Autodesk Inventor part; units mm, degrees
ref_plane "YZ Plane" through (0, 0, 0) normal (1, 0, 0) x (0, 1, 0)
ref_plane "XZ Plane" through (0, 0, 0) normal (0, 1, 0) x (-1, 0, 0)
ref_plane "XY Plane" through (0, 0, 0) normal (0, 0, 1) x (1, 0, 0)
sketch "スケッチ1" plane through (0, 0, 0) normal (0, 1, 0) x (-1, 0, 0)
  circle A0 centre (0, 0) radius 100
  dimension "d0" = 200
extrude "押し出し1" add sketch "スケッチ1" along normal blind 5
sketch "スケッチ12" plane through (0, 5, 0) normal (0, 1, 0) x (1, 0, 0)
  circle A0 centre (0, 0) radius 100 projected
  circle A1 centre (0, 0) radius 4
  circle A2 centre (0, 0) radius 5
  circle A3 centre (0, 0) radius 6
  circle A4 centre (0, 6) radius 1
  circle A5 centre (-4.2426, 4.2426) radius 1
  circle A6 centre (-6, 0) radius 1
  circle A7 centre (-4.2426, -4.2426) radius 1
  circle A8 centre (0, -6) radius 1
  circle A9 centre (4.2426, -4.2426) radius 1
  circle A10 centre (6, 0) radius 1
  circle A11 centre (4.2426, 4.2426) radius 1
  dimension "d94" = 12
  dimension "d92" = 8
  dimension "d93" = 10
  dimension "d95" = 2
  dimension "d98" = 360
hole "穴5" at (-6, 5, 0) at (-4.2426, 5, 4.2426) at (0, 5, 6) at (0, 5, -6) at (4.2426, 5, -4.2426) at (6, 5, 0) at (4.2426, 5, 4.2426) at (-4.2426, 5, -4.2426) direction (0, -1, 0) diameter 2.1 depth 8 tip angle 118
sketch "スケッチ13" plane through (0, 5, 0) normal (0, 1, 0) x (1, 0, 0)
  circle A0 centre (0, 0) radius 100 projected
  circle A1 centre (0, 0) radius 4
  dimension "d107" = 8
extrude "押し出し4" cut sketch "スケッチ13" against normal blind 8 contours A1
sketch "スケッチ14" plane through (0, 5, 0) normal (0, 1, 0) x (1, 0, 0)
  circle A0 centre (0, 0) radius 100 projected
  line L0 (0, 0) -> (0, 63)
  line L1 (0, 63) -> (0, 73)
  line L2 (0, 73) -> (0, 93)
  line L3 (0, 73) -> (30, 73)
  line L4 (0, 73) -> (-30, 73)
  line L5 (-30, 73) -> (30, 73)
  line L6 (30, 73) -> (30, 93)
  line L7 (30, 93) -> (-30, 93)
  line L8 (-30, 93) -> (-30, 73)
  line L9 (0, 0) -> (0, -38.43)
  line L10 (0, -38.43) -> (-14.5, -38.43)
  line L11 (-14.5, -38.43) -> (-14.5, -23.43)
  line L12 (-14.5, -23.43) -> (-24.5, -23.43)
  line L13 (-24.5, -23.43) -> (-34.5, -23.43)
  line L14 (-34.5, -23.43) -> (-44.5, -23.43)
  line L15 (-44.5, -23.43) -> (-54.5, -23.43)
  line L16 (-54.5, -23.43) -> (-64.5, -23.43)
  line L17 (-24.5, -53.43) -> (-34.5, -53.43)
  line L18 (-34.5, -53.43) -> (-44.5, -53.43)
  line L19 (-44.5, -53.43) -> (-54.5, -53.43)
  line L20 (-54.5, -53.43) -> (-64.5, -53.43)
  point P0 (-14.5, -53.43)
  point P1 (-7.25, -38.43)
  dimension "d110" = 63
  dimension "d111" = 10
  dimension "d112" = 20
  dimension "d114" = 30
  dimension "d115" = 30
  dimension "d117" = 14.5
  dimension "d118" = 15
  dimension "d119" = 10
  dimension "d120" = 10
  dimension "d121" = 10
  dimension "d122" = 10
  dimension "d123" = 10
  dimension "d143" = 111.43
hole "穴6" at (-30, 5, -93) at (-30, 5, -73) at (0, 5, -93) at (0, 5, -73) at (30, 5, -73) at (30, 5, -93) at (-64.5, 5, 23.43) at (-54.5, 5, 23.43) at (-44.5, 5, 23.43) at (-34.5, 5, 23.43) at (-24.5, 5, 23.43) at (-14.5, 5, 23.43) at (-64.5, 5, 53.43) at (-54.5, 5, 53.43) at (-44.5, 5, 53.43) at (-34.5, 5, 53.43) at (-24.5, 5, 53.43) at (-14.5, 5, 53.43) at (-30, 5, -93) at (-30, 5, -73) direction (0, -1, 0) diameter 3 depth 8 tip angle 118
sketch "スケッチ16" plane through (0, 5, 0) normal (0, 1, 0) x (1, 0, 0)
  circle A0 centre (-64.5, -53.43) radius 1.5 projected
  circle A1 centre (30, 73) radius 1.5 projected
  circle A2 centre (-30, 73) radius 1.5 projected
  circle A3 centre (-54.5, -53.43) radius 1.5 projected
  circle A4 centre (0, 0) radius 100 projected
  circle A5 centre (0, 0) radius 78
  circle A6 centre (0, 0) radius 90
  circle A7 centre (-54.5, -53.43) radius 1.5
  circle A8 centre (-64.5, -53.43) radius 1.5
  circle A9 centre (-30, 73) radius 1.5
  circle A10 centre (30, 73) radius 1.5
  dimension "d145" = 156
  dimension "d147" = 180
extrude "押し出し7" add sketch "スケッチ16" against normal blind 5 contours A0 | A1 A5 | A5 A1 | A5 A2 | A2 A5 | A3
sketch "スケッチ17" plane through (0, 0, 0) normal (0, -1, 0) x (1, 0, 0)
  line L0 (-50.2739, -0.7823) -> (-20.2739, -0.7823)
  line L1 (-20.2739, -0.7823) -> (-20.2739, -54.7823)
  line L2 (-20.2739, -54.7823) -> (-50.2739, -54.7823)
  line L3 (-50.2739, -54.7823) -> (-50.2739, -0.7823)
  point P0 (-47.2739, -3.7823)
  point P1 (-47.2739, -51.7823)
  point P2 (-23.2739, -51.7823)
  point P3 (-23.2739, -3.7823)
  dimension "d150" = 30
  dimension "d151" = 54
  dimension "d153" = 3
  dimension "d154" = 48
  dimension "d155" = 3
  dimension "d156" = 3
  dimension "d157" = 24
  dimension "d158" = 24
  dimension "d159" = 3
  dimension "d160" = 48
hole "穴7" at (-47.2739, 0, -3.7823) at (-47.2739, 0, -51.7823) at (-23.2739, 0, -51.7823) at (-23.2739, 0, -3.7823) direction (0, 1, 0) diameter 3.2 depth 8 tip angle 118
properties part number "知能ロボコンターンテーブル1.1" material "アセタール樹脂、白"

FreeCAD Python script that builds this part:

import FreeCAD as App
import Part
import Sketcher

V = App.Vector
Q = App.Units.Quantity

doc = App.newDocument("Part")
body = doc.addObject("PartDesign::Body", "Body")

sketch1 = body.newObject("Sketcher::SketchObject", "Sketch")
sketch1.AttachmentSupport = (doc.getObject("XZ_Plane"), [""])
sketch1.MapMode = "FlatFace"
sketch1.addGeometry(Part.Circle(V(0, 0, 0), V(0, 0, 1), 100), False)
sketch1.addConstraint([
    Sketcher.Constraint("Coincident", 0, 3, -1, 1),
    Sketcher.Constraint("Diameter", 0, Q("200 mm")),
])
pad1 = body.newObject("PartDesign::Pad", "Pad")
pad1.Profile = sketch1
pad1.Length = 5
pad1.Reversed = True

sketch2 = body.newObject("Sketcher::SketchObject", "Sketch001")
sketch2.AttachmentSupport = (doc.getObject("XZ_Plane"), [""])
sketch2.MapMode = "FlatFace"
sketch2.AttachmentOffset = App.Placement(V(0, 0, -5), App.Rotation())
sketch2.addGeometry([
    Part.Circle(V(-6, 0, 0), V(0, 0, 1), 1.1),
    Part.Circle(V(-4.2, 4.2, 0), V(0, 0, 1), 1.1),
    Part.Circle(V(0, 6, 0), V(0, 0, 1), 1.1),
    Part.Circle(V(0, -6, 0), V(0, 0, 1), 1.1),
    Part.Circle(V(4.2, -4.2, 0), V(0, 0, 1), 1.1),
    Part.Circle(V(6, 0, 0), V(0, 0, 1), 1.1),
    Part.Circle(V(4.2, 4.2, 0), V(0, 0, 1), 1.1),
    Part.Circle(V(-4.2, -4.2, 0), V(0, 0, 1), 1.1),
], False)
sketch2.addConstraint([
    Sketcher.Constraint("Equal", 0, 1),
    Sketcher.Constraint("Equal", 1, 2),
    Sketcher.Constraint("Equal", 2, 3),
    Sketcher.Constraint("Equal", 3, 4),
    Sketcher.Constraint("Equal", 4, 5),
    Sketcher.Constraint("Equal", 5, 6),
    Sketcher.Constraint("Equal", 6, 7),
    Sketcher.Constraint("Symmetric", 2, 3, 3, 3, -1, 1),
    Sketcher.Constraint("Symmetric", 1, 3, 4, 3, -1, 1),
    Sketcher.Constraint("Symmetric", 0, 3, 5, 3, -1, 1),
    Sketcher.Constraint("Symmetric", 6, 3, 7, 3, -1, 1),
    Sketcher.Constraint("Symmetric", 1, 3, 6, 3, -2),
    Sketcher.Constraint("PointOnObject", 0, 3, -1),
    Sketcher.Constraint("PointOnObject", 2, 3, -2),
    Sketcher.Constraint("Diameter", 0, Q("2.1 mm")),
    Sketcher.Constraint("DistanceX", 0, 3, -1, 1, Q("6 mm")),
    Sketcher.Constraint("DistanceY", -1, 1, 2, 3, Q("6 mm")),
    Sketcher.Constraint("DistanceX", 1, 3, -1, 1, Q("4.2426 mm")),
    Sketcher.Constraint("DistanceY", -1, 1, 1, 3, Q("4.2426 mm")),
])
doc.recompute()
hole = body.newObject("PartDesign::Hole", "Hole")
hole.Profile = sketch2
hole.ThreadType = "None"
hole.Diameter = 2.1
hole.DepthType = "Dimension"
hole.Depth = 8
hole.DrillPoint = "Angled"
hole.DrillPointAngle = 118
hole.Reversed = True

sketch3 = body.newObject("Sketcher::SketchObject", "Sketch002")
sketch3.AttachmentSupport = (doc.getObject("XZ_Plane"), [""])
sketch3.MapMode = "FlatFace"
sketch3.AttachmentOffset = App.Placement(V(0, 0, -5), App.Rotation())
sketch3.addGeometry(Part.Circle(V(0, 0, 0), V(0, 0, 1), 4), False)
sketch3.addConstraint([
    Sketcher.Constraint("Coincident", 0, 3, -1, 1),
    Sketcher.Constraint("Diameter", 0, Q("8 mm")),
])
pocket1 = body.newObject("PartDesign::Pocket", "Pocket")
pocket1.Profile = sketch3
pocket1.Length = 8
pocket1.Reversed = True

sketch4 = body.newObject("Sketcher::SketchObject", "Sketch003")
sketch4.AttachmentSupport = (doc.getObject("XZ_Plane"), [""])
sketch4.MapMode = "FlatFace"
sketch4.AttachmentOffset = App.Placement(V(0, 0, -5), App.Rotation())
sketch4.addGeometry([
    Part.Circle(V(-30, -93, 0), V(0, 0, 1), 1.5),
    Part.Circle(V(-30, -73, 0), V(0, 0, 1), 1.5),
    Part.Circle(V(0, -93, 0), V(0, 0, 1), 1.5),
    Part.Circle(V(0, -73, 0), V(0, 0, 1), 1.5),
    Part.Circle(V(30, -73, 0), V(0, 0, 1), 1.5),
    Part.Circle(V(30, -93, 0), V(0, 0, 1), 1.5),
    Part.Circle(V(-64.5, 23.4, 0), V(0, 0, 1), 1.5),
    Part.Circle(V(-54.5, 23.4, 0), V(0, 0, 1), 1.5),
    Part.Circle(V(-44.5, 23.4, 0), V(0, 0, 1), 1.5),
    Part.Circle(V(-34.5, 23.4, 0), V(0, 0, 1), 1.5),
    Part.Circle(V(-24.5, 23.4, 0), V(0, 0, 1), 1.5),
    Part.Circle(V(-14.5, 23.4, 0), V(0, 0, 1), 1.5),
    Part.Circle(V(-64.5, 53.4, 0), V(0, 0, 1), 1.5),
    Part.Circle(V(-54.5, 53.4, 0), V(0, 0, 1), 1.5),
    Part.Circle(V(-44.5, 53.4, 0), V(0, 0, 1), 1.5),
    Part.Circle(V(-34.5, 53.4, 0), V(0, 0, 1), 1.5),
    Part.Circle(V(-24.5, 53.4, 0), V(0, 0, 1), 1.5),
    Part.Circle(V(-14.5, 53.4, 0), V(0, 0, 1), 1.5),
    Part.Circle(V(-30, -93, 0), V(0, 0, 1), 1.5),
    Part.Circle(V(-30, -73, 0), V(0, 0, 1), 1.5),
], False)
sketch4.addConstraint([
    Sketcher.Constraint("Coincident", 18, 3, 0, 3),
    Sketcher.Constraint("Coincident", 19, 3, 1, 3),
    Sketcher.Constraint("Equal", 0, 1),
    Sketcher.Constraint("Equal", 1, 2),
    Sketcher.Constraint("Equal", 2, 3),
    Sketcher.Constraint("Equal", 3, 4),
    Sketcher.Constraint("Equal", 4, 5),
    Sketcher.Constraint("Equal", 5, 6),
    Sketcher.Constraint("Equal", 6, 7),
    Sketcher.Constraint("Equal", 7, 8),
    Sketcher.Constraint("Equal", 8, 9),
    Sketcher.Constraint("Equal", 9, 10),
    Sketcher.Constraint("Equal", 10, 11),
    Sketcher.Constraint("Equal", 11, 12),
    Sketcher.Constraint("Equal", 12, 13),
    Sketcher.Constraint("Equal", 13, 14),
    Sketcher.Constraint("Equal", 14, 15),
    Sketcher.Constraint("Equal", 15, 16),
    Sketcher.Constraint("Equal", 16, 17),
    Sketcher.Constraint("Equal", 17, 18),
    Sketcher.Constraint("Equal", 18, 19),
    Sketcher.Constraint("Symmetric", 1, 3, 4, 3, -2),
    Sketcher.Constraint("Symmetric", 0, 3, 5, 3, -2),
    Sketcher.Constraint("PointOnObject", 2, 3, -2),
    Sketcher.Constraint("PointOnObject", 3, 3, -2),
    Sketcher.Constraint("Horizontal", 0, 3, 2, 3),
    Sketcher.Constraint("Horizontal", 1, 3, 3, 3),
    Sketcher.Constraint("Horizontal", 6, 3, 7, 3),
    Sketcher.Constraint("Horizontal", 7, 3, 8, 3),
    Sketcher.Constraint("Horizontal", 8, 3, 9, 3),
    Sketcher.Constraint("Horizontal", 9, 3, 10, 3),
    Sketcher.Constraint("Horizontal", 10, 3, 11, 3),
    Sketcher.Constraint("Horizontal", 12, 3, 13, 3),
    Sketcher.Constraint("Horizontal", 13, 3, 14, 3),
    Sketcher.Constraint("Horizontal", 14, 3, 15, 3),
    Sketcher.Constraint("Horizontal", 15, 3, 16, 3),
    Sketcher.Constraint("Horizontal", 16, 3, 17, 3),
    Sketcher.Constraint("Vertical", 0, 3, 1, 3),
    Sketcher.Constraint("Vertical", 6, 3, 12, 3),
    Sketcher.Constraint("Vertical", 7, 3, 13, 3),
    Sketcher.Constraint("Vertical", 8, 3, 14, 3),
    Sketcher.Constraint("Vertical", 9, 3, 15, 3),
    Sketcher.Constraint("Vertical", 10, 3, 16, 3),
    Sketcher.Constraint("Vertical", 11, 3, 17, 3),
    Sketcher.Constraint("Diameter", 0, Q("3 mm")),
    Sketcher.Constraint("DistanceX", 0, 3, -1, 1, Q("30 mm")),
    Sketcher.Constraint("DistanceY", 0, 3, -1, 1, Q("93 mm")),
    Sketcher.Constraint("DistanceY", 1, 3, -1, 1, Q("73 mm")),
    Sketcher.Constraint("DistanceX", 6, 3, 7, 3, Q("10 mm")),
    Sketcher.Constraint("DistanceX", 7, 3, 8, 3, Q("10 mm")),
    Sketcher.Constraint("DistanceX", 8, 3, 9, 3, Q("10 mm")),
    Sketcher.Constraint("DistanceX", 9, 3, 10, 3, Q("10 mm")),
    Sketcher.Constraint("DistanceX", 10, 3, 11, 3, Q("10 mm")),
    Sketcher.Constraint("DistanceY", 6, 3, 12, 3, Q("30 mm")),
    Sketcher.Constraint("DistanceX", 6, 3, -1, 1, Q("64.5 mm")),
    Sketcher.Constraint("DistanceY", -1, 1, 6, 3, Q("23.43 mm")),
])
doc.recompute()
hole2 = body.newObject("PartDesign::Hole", "Hole001")
hole2.Profile = sketch4
hole2.ThreadType = "None"
hole2.Diameter = 3
hole2.DepthType = "Dimension"
hole2.Depth = 8
hole2.DrillPoint = "Angled"
hole2.DrillPointAngle = 118
hole2.Reversed = True

sketch5 = body.newObject("Sketcher::SketchObject", "Sketch004")
sketch5.AttachmentSupport = (doc.getObject("XZ_Plane"), [""])
sketch5.MapMode = "FlatFace"
sketch5.AttachmentOffset = App.Placement(V(0, 0, -5), App.Rotation())
sketch5.addGeometry([
    Part.Circle(V(-64.5, 53.4, 0), V(0, 0, 1), 1.5),
    Part.Circle(V(30, -73, 0), V(0, 0, 1), 1.5),
    Part.Circle(V(-30, -73, 0), V(0, 0, 1), 1.5),
    Part.Circle(V(-54.5, 53.4, 0), V(0, 0, 1), 1.5),
], False)
sketch5.addConstraint([
    Sketcher.Constraint("Equal", 0, 1),
    Sketcher.Constraint("Equal", 1, 2),
    Sketcher.Constraint("Equal", 2, 3),
    Sketcher.Constraint("Symmetric", 1, 3, 2, 3, -2),
    Sketcher.Constraint("Horizontal", 0, 3, 3, 3),
    Sketcher.Constraint("Diameter", 0, Q("3 mm")),
    Sketcher.Constraint("DistanceX", -1, 1, 1, 3, Q("30 mm")),
    Sketcher.Constraint("DistanceY", 1, 3, -1, 1, Q("73 mm")),
    Sketcher.Constraint("DistanceX", 0, 3, 3, 3, Q("10 mm")),
    Sketcher.Constraint("DistanceX", 0, 3, -1, 1, Q("64.5 mm")),
    Sketcher.Constraint("DistanceY", -1, 1, 0, 3, Q("53.43 mm")),
])
pad2 = body.newObject("PartDesign::Pad", "Pad001")
pad2.Profile = sketch5
pad2.Length = 5

sketch6 = body.newObject("Sketcher::SketchObject", "Sketch005")
sketch6.AttachmentSupport = (doc.getObject("XZ_Plane"), [""])
sketch6.MapMode = "FlatFace"
sketch6.addGeometry([
    Part.Circle(V(-47.3, -3.8, 0), V(0, 0, 1), 1.6),
    Part.Circle(V(-47.3, -51.8, 0), V(0, 0, 1), 1.6),
    Part.Circle(V(-23.3, -51.8, 0), V(0, 0, 1), 1.6),
    Part.Circle(V(-23.3, -3.8, 0), V(0, 0, 1), 1.6),
], False)
sketch6.addConstraint([
    Sketcher.Constraint("Equal", 0, 1),
    Sketcher.Constraint("Equal", 1, 2),
    Sketcher.Constraint("Equal", 2, 3),
    Sketcher.Constraint("Horizontal", 1, 3, 2, 3),
    Sketcher.Constraint("Horizontal", 0, 3, 3, 3),
    Sketcher.Constraint("Vertical", 0, 3, 1, 3),
    Sketcher.Constraint("Vertical", 2, 3, 3, 3),
    Sketcher.Constraint("Diameter", 0, Q("3.2 mm")),
    Sketcher.Constraint("DistanceY", 1, 3, 0, 3, Q("48 mm")),
    Sketcher.Constraint("DistanceX", 1, 3, 2, 3, Q("24 mm")),
    Sketcher.Constraint("DistanceX", 0, 3, -1, 1, Q("47.274 mm")),
    Sketcher.Constraint("DistanceY", 0, 3, -1, 1, Q("3.7823 mm")),
])
doc.recompute()
hole3 = body.newObject("PartDesign::Hole", "Hole002")
hole3.Profile = sketch6
hole3.ThreadType = "None"
hole3.Diameter = 3.2
hole3.DepthType = "Dimension"
hole3.Depth = 8
hole3.DrillPoint = "Angled"
hole3.DrillPointAngle = 118

doc.recompute()
